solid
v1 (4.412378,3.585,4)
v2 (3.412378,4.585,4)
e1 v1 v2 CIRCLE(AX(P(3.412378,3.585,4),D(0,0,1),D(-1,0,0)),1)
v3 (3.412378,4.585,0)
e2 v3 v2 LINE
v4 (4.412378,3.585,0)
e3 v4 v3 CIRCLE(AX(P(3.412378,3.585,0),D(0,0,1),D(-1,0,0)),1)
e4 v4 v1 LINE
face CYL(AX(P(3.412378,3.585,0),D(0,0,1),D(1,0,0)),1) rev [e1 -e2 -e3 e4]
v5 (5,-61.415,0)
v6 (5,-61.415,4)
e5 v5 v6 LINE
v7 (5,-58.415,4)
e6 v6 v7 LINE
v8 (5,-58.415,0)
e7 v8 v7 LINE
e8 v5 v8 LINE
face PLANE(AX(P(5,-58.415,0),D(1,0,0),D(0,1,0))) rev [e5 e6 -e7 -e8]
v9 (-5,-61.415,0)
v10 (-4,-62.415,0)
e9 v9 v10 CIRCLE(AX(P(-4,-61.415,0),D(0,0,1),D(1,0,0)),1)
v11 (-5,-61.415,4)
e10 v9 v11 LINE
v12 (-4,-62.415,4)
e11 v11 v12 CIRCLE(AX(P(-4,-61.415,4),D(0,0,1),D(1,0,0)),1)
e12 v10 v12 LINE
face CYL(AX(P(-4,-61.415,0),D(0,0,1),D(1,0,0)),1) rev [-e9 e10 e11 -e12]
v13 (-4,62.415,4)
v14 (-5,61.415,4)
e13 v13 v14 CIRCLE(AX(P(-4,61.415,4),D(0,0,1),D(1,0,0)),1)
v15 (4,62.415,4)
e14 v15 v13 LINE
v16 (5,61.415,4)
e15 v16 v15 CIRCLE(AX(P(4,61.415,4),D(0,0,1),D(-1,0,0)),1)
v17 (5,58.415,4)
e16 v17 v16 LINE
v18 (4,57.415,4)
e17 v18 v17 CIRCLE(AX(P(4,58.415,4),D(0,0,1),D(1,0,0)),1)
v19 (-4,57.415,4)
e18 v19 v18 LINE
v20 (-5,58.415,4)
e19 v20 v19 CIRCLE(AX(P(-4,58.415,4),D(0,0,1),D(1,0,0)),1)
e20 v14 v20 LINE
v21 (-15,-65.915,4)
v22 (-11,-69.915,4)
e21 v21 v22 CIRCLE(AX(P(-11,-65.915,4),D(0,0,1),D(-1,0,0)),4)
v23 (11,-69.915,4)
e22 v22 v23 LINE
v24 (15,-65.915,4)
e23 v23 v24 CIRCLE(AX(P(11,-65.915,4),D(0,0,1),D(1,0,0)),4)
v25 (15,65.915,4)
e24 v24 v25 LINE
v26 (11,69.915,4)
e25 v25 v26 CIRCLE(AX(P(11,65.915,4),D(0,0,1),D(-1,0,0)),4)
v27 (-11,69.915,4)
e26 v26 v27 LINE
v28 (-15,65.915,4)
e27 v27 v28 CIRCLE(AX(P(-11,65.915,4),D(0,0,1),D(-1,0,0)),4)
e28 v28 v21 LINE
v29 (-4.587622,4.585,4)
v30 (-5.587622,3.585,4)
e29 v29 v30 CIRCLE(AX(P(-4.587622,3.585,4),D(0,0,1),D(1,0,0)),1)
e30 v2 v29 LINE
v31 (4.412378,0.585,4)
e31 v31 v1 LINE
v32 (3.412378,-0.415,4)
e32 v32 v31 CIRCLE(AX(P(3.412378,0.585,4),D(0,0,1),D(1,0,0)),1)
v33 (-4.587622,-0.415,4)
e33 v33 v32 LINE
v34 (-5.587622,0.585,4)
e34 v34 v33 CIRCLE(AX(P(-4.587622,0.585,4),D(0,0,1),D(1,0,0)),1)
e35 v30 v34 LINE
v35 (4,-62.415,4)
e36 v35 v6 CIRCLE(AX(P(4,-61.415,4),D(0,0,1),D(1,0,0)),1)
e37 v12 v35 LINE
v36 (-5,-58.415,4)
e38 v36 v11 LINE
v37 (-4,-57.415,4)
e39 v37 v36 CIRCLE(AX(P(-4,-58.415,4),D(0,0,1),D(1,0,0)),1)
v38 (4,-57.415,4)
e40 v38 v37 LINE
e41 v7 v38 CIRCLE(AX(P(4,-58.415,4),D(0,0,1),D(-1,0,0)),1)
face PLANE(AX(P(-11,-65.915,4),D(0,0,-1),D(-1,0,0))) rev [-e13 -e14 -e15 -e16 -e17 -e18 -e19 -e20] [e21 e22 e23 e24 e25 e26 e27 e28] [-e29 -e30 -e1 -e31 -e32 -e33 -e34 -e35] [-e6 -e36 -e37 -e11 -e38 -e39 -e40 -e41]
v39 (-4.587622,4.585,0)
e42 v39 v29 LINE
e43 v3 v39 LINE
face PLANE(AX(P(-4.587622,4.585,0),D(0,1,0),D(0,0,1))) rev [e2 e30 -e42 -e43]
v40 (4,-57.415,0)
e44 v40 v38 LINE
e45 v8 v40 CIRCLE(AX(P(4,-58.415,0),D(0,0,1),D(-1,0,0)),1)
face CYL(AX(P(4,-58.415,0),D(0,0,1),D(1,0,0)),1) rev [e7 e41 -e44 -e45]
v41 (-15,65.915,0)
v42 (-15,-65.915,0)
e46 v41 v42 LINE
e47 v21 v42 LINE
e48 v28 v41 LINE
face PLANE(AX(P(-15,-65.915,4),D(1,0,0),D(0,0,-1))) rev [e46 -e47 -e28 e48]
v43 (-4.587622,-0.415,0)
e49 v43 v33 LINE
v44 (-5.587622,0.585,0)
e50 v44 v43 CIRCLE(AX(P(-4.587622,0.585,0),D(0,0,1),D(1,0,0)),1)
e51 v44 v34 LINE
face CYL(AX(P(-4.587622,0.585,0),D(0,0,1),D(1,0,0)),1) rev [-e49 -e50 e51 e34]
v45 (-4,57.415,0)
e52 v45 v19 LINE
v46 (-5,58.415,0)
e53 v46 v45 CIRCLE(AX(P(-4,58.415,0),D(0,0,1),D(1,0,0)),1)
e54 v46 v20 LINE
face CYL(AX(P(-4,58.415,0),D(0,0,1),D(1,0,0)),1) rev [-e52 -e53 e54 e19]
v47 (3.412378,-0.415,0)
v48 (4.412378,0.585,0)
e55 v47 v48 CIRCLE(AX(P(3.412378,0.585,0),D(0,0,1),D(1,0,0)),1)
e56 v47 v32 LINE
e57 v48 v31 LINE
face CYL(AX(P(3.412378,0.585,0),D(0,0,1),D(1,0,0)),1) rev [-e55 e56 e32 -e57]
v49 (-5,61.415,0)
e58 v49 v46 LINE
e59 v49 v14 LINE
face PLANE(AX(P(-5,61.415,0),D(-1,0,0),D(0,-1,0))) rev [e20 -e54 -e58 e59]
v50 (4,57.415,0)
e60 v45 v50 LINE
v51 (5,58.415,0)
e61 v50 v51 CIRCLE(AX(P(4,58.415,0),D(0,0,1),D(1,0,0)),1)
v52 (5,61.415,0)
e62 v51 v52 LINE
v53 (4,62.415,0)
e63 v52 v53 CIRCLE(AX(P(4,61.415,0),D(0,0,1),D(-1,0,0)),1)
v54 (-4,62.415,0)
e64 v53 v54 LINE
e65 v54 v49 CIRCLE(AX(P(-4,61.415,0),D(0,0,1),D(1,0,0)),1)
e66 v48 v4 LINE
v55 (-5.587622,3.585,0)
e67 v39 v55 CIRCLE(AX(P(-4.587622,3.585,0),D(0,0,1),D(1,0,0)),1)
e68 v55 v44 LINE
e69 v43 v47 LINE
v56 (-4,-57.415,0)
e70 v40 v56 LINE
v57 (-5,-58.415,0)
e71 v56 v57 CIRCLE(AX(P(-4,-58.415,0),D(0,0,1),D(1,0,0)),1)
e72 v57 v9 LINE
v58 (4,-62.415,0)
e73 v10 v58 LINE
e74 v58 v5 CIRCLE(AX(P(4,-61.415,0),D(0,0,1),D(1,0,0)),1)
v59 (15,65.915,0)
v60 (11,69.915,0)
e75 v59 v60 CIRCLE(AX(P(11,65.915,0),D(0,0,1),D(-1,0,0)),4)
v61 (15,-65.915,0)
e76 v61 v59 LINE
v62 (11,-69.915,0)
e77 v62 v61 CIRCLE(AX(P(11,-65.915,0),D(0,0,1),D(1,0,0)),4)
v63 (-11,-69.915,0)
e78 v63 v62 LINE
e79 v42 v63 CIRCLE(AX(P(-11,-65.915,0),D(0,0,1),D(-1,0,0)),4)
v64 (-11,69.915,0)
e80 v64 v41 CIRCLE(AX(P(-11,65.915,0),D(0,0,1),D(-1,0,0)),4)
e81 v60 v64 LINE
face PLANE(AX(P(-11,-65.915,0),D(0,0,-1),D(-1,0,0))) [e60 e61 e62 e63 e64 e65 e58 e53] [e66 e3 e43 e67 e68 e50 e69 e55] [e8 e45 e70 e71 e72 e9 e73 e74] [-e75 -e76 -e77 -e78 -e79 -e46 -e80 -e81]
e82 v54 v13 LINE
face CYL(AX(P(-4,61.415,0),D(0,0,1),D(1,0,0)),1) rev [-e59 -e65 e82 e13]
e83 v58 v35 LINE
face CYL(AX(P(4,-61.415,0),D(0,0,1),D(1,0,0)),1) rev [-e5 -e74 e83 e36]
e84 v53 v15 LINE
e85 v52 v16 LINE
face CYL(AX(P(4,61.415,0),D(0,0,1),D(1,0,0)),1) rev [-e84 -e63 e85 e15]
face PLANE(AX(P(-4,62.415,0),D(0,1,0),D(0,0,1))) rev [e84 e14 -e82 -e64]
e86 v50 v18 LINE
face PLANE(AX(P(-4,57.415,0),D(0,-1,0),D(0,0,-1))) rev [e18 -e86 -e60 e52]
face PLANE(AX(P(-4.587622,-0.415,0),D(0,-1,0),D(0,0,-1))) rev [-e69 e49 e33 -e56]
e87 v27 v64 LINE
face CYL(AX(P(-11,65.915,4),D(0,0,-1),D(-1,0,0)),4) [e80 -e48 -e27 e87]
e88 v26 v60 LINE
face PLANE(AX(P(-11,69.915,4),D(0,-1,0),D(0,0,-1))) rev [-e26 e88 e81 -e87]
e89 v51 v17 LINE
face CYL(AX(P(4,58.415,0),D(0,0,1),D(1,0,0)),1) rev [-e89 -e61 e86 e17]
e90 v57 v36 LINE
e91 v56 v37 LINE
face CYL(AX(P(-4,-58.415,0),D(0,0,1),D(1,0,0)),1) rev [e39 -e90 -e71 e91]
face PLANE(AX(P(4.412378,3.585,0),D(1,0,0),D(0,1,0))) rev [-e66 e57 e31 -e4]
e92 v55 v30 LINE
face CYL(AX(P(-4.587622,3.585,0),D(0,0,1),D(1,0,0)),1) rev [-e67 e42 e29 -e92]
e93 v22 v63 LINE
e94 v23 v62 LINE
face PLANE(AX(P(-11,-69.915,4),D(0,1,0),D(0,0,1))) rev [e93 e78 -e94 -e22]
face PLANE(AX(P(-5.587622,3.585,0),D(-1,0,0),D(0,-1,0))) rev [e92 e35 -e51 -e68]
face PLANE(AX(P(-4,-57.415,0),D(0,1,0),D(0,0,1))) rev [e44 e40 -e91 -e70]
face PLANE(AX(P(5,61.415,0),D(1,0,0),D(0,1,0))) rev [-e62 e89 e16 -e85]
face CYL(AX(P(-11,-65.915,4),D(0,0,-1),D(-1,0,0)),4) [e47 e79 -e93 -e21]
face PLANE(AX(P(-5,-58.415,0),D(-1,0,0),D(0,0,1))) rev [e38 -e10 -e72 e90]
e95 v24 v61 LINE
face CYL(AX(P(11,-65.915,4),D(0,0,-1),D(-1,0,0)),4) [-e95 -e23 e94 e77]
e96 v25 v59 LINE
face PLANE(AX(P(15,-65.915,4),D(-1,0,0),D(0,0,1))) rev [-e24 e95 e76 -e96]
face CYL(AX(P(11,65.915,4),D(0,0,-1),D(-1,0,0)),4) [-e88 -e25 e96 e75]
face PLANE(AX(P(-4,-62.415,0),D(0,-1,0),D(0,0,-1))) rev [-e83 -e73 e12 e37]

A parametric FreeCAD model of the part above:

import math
import FreeCAD as App
import Part
import Sketcher
from FreeCAD import Vector

doc = App.newDocument("Part")
body = doc.addObject("PartDesign::Body", "Body")

# Sketch on XY plane
sketch1 = doc.addObject("Sketcher::SketchObject", "Sketch")
body.addObject(sketch1)
sketch1.AttachmentSupport = (doc.XY_Plane, [""])
sketch1.MapMode = "FlatFace"
sketch1.addGeometry([
    Part.LineSegment(Vector(-11, -69.9, 0), Vector(11, -69.9, 0)),  # 0
    Part.ArcOfCircle(Part.Circle(Vector(11, -65.9, 0), Vector(0, 0, 1), 4), math.radians(-90), math.radians(0)),  # 1
    Part.LineSegment(Vector(15, -65.9, 0), Vector(15, 65.9, 0)),  # 2
    Part.ArcOfCircle(Part.Circle(Vector(11, 65.9, 0), Vector(0, 0, 1), 4), math.radians(0), math.radians(90)),  # 3
    Part.LineSegment(Vector(11, 69.9, 0), Vector(-11, 69.9, 0)),  # 4
    Part.ArcOfCircle(Part.Circle(Vector(-11, 65.9, 0), Vector(0, 0, 1), 4), math.radians(90), math.radians(180)),  # 5
    Part.LineSegment(Vector(-15, 65.9, 0), Vector(-15, -65.9, 0)),  # 6
    Part.ArcOfCircle(Part.Circle(Vector(-11, -65.9, 0), Vector(0, 0, 1), 4), math.radians(180), math.radians(270)),  # 7
], False)
sketch1.addConstraint([
    Sketcher.Constraint("Tangent", 0, 2, 1, 1),
    Sketcher.Constraint("Tangent", 1, 2, 2, 1),
    Sketcher.Constraint("Tangent", 2, 2, 3, 1),
    Sketcher.Constraint("Tangent", 3, 2, 4, 1),
    Sketcher.Constraint("Tangent", 4, 2, 5, 1),
    Sketcher.Constraint("Tangent", 5, 2, 6, 1),
    Sketcher.Constraint("Tangent", 6, 2, 7, 1),
    Sketcher.Constraint("Tangent", 7, 2, 0, 1),
    Sketcher.Constraint("Horizontal", 0),
    Sketcher.Constraint("Vertical", 2),
    Sketcher.Constraint("Horizontal", 4),
    Sketcher.Constraint("Vertical", 6),
    Sketcher.Constraint("Equal", 1, 3),
    Sketcher.Constraint("Equal", 3, 5),
    Sketcher.Constraint("Equal", 5, 7),
    Sketcher.Constraint("Symmetric", 1, 3, 5, 3, -1, 1),
    Sketcher.Constraint("Radius", 1, 4.0),
    Sketcher.Constraint("DistanceX", 0, 1, 0, 2, 22.0),
    Sketcher.Constraint("DistanceY", 2, 1, 2, 2, 131.83),
])
pad1 = doc.addObject("PartDesign::Pad", "Pad")
body.addObject(pad1)
pad1.Profile = sketch1
pad1.Length = 4

# Sketch on XY plane
sketch2 = doc.addObject("Sketcher::SketchObject", "Sketch001")
body.addObject(sketch2)
sketch2.AttachmentSupport = (doc.XY_Plane, [""])
sketch2.MapMode = "FlatFace"
sketch2.AttachmentOffset = App.Placement(Vector(0, 0, 4), App.Rotation())
sketch2.addGeometry([
    Part.LineSegment(Vector(4, -57.4, 0), Vector(-4, -57.4, 0)),  # 0
    Part.ArcOfCircle(Part.Circle(Vector(-4, -58.4, 0), Vector(0, 0, 1), 1), math.radians(90), math.radians(180)),  # 1
    Part.LineSegment(Vector(-5, -58.4, 0), Vector(-5, -61.4, 0)),  # 2
    Part.ArcOfCircle(Part.Circle(Vector(-4, -61.4, 0), Vector(0, 0, 1), 1), math.radians(-180), math.radians(-90)),  # 3
    Part.LineSegment(Vector(-4, -62.4, 0), Vector(4, -62.4, 0)),  # 4
    Part.ArcOfCircle(Part.Circle(Vector(4, -61.4, 0), Vector(0, 0, 1), 1), math.radians(-90), math.radians(0)),  # 5
    Part.LineSegment(Vector(5, -61.4, 0), Vector(5, -58.4, 0)),  # 6
    Part.ArcOfCircle(Part.Circle(Vector(4, -58.4, 0), Vector(0, 0, 1), 1), math.radians(0), math.radians(90)),  # 7
    Part.LineSegment(Vector(4, 62.4, 0), Vector(-4, 62.4, 0)),  # 8
    Part.ArcOfCircle(Part.Circle(Vector(-4, 61.4, 0), Vector(0, 0, 1), 1), math.radians(90), math.radians(180)),  # 9
    Part.LineSegment(Vector(-5, 61.4, 0), Vector(-5, 58.4, 0)),  # 10
    Part.ArcOfCircle(Part.Circle(Vector(-4, 58.4, 0), Vector(0, 0, 1), 1), math.radians(-180), math.radians(-90)),  # 11
    Part.LineSegment(Vector(-4, 57.4, 0), Vector(4, 57.4, 0)),  # 12
    Part.ArcOfCircle(Part.Circle(Vector(4, 58.4, 0), Vector(0, 0, 1), 1), math.radians(-90), math.radians(0)),  # 13
    Part.LineSegment(Vector(5, 58.4, 0), Vector(5, 61.4, 0)),  # 14
    Part.ArcOfCircle(Part.Circle(Vector(4, 61.4, 0), Vector(0, 0, 1), 1), math.radians(0), math.radians(90)),  # 15
    Part.LineSegment(Vector(3.4, 4.6, 0), Vector(-4.6, 4.6, 0)),  # 16
    Part.ArcOfCircle(Part.Circle(Vector(-4.6, 3.6, 0), Vector(0, 0, 1), 1), math.radians(90), math.radians(180)),  # 17
    Part.LineSegment(Vector(-5.6, 3.6, 0), Vector(-5.6, 0.6, 0)),  # 18
    Part.ArcOfCircle(Part.Circle(Vector(-4.6, 0.6, 0), Vector(0, 0, 1), 1), math.radians(-180), math.radians(-90)),  # 19
    Part.LineSegment(Vector(-4.6, -0.4, 0), Vector(3.4, -0.4, 0)),  # 20
    Part.ArcOfCircle(Part.Circle(Vector(3.4, 0.6, 0), Vector(0, 0, 1), 1), math.radians(-90), math.radians(0)),  # 21
    Part.LineSegment(Vector(4.4, 0.6, 0), Vector(4.4, 3.6, 0)),  # 22
    Part.ArcOfCircle(Part.Circle(Vector(3.4, 3.6, 0), Vector(0, 0, 1), 1), math.radians(0), math.radians(90)),  # 23
], False)
sketch2.addConstraint([
    Sketcher.Constraint("Tangent", 0, 2, 1, 1),
    Sketcher.Constraint("Tangent", 1, 2, 2, 1),
    Sketcher.Constraint("Tangent", 2, 2, 3, 1),
    Sketcher.Constraint("Tangent", 3, 2, 4, 1),
    Sketcher.Constraint("Tangent", 4, 2, 5, 1),
    Sketcher.Constraint("Tangent", 5, 2, 6, 1),
    Sketcher.Constraint("Tangent", 6, 2, 7, 1),
    Sketcher.Constraint("Tangent", 7, 2, 0, 1),
    Sketcher.Constraint("Tangent", 8, 2, 9, 1),
    Sketcher.Constraint("Tangent", 9, 2, 10, 1),
    Sketcher.Constraint("Tangent", 10, 2, 11, 1),
    Sketcher.Constraint("Tangent", 11, 2, 12, 1),
    Sketcher.Constraint("Tangent", 12, 2, 13, 1),
    Sketcher.Constraint("Tangent", 13, 2, 14, 1),
    Sketcher.Constraint("Tangent", 14, 2, 15, 1),
    Sketcher.Constraint("Tangent", 15, 2, 8, 1),
    Sketcher.Constraint("Tangent", 16, 2, 17, 1),
    Sketcher.Constraint("Tangent", 17, 2, 18, 1),
    Sketcher.Constraint("Tangent", 18, 2, 19, 1),
    Sketcher.Constraint("Tangent", 19, 2, 20, 1),
    Sketcher.Constraint("Tangent", 20, 2, 21, 1),
    Sketcher.Constraint("Tangent", 21, 2, 22, 1),
    Sketcher.Constraint("Tangent", 22, 2, 23, 1),
    Sketcher.Constraint("Tangent", 23, 2, 16, 1),
    Sketcher.Constraint("Horizontal", 0),
    Sketcher.Constraint("Vertical", 2),
    Sketcher.Constraint("Horizontal", 4),
    Sketcher.Constraint("Vertical", 6),
    Sketcher.Constraint("Horizontal", 8),
    Sketcher.Constraint("Vertical", 10),
    Sketcher.Constraint("Horizontal", 12),
    Sketcher.Constraint("Vertical", 14),
    Sketcher.Constraint("Horizontal", 16),
    Sketcher.Constraint("Vertical", 18),
    Sketcher.Constraint("Horizontal", 20),
    Sketcher.Constraint("Vertical", 22),
    Sketcher.Constraint("Equal", 1, 3),
    Sketcher.Constraint("Equal", 3, 5),
    Sketcher.Constraint("Equal", 5, 7),
    Sketcher.Constraint("Equal", 7, 9),
    Sketcher.Constraint("Equal", 9, 11),
    Sketcher.Constraint("Equal", 11, 13),
    Sketcher.Constraint("Equal", 13, 15),
    Sketcher.Constraint("Equal", 15, 17),
    Sketcher.Constraint("Equal", 17, 19),
    Sketcher.Constraint("Equal", 19, 21),
    Sketcher.Constraint("Equal", 21, 23),
    Sketcher.Constraint("Symmetric", 5, 3, 9, 3, -1, 1),
    Sketcher.Constraint("Symmetric", 1, 3, 13, 3, -1, 1),
    Sketcher.Constraint("Vertical", 3, 3, 9, 3),
    Sketcher.Constraint("Equal", 12, 16),
    Sketcher.Constraint("Equal", 14, 18),
    Sketcher.Constraint("Radius", 1, 1.0),
    Sketcher.Constraint("DistanceX", 0, 2, 0, 1, 8.0),
    Sketcher.Constraint("DistanceY", 2, 2, 2, 1, 3.0),
    Sketcher.Constraint("DistanceY", 1, 3, 17, 3, 62.0),
    Sketcher.Constraint("DistanceY", 1, 3, 9, 3, 119.83),
    Sketcher.Constraint("DistanceX", 17, 3, -1, 1, 4.587622),
])
pocket1 = doc.addObject("PartDesign::Pocket", "Pocket")
body.addObject(pocket1)
pocket1.Profile = sketch2
pocket1.Type = "ThroughAll"

doc.recompute()
